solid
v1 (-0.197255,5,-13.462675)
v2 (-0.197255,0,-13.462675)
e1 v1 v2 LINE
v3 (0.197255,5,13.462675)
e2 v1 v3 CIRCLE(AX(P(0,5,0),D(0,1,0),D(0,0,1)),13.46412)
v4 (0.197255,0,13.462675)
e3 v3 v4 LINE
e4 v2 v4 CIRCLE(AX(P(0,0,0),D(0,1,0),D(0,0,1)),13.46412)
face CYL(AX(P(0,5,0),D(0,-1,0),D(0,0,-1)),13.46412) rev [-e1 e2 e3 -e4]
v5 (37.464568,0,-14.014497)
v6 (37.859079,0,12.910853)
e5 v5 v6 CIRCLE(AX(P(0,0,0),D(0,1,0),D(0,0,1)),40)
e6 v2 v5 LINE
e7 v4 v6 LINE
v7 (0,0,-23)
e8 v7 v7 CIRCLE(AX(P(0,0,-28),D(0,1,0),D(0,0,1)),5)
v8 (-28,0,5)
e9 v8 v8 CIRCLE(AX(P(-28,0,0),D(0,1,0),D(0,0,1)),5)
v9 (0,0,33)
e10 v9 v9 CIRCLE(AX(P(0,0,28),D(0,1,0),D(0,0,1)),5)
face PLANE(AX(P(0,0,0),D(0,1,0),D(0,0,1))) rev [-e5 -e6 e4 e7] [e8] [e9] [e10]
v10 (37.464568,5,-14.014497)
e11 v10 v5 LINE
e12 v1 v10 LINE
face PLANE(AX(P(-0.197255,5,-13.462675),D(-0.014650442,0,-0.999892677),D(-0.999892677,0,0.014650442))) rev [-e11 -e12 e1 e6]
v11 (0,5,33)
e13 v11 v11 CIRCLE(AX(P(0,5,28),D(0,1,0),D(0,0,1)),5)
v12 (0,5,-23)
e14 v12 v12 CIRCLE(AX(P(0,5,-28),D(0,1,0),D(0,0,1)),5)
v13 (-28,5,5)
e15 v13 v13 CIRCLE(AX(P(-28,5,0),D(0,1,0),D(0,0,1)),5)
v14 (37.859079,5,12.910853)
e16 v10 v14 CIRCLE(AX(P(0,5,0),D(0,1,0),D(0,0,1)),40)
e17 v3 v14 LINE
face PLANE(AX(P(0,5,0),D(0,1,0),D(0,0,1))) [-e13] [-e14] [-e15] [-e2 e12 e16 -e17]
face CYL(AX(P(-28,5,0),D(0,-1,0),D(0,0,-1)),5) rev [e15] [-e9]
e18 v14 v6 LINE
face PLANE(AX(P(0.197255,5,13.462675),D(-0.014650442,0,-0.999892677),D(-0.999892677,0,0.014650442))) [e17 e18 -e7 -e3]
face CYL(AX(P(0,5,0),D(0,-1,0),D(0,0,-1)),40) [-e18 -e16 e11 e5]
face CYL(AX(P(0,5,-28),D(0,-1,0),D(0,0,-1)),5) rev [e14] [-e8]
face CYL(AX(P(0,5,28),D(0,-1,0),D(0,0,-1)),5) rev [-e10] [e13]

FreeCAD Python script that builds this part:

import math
import FreeCAD as App
import Part
import Sketcher
from FreeCAD import Vector

doc = App.newDocument("Part")
body = doc.addObject("PartDesign::Body", "Body")

# Sketch on XZ plane
sketch1 = body.newObject("Sketcher::SketchObject", "Sketch")
sketch1.AttachmentSupport = (doc.getObject("XZ_Plane"), [""])
sketch1.MapMode = "FlatFace"
sketch1.addGeometry([
    Part.LineSegment(Vector(0, -13, 0), Vector(37, -14, 0)),  # 0
    Part.ArcOfCircle(Part.Circle(Vector(0, 0, 0), Vector(0, 0, 1), 40), math.radians(19), math.radians(339)),  # 1
    Part.LineSegment(Vector(38, 13, 0), Vector(0, 13, 0)),  # 2
    Part.ArcOfCircle(Part.Circle(Vector(0, 0, 0), Vector(0, 0, 1), 13), math.radians(89), math.radians(269)),  # 3
    Part.Circle(Vector(0, 28, 0), Vector(0, 0, 1), 5),  # 4
    Part.Circle(Vector(-28, 0, 0), Vector(0, 0, 1), 5),  # 5
    Part.Circle(Vector(0, -28, 0), Vector(0, 0, 1), 5),  # 6
], False)
sketch1.addConstraint([
    Sketcher.Constraint("Coincident", 0, 2, 1, 2),
    Sketcher.Constraint("Coincident", 1, 1, 2, 1),
    Sketcher.Constraint("Tangent", 2, 2, 3, 1),
    Sketcher.Constraint("Tangent", 3, 2, 0, 1),
    Sketcher.Constraint("Coincident", 1, 3, -1, 1),
    Sketcher.Constraint("Coincident", 3, 3, -1, 1),
    Sketcher.Constraint("Equal", 4, 5),
    Sketcher.Constraint("Equal", 5, 6),
    Sketcher.Constraint("Symmetric", 4, 3, 6, 3, -1, 1),
    Sketcher.Constraint("PointOnObject", 4, 3, -2),
    Sketcher.Constraint("PointOnObject", 5, 3, -1),
    Sketcher.Constraint("Parallel", 0, 2),
    Sketcher.Constraint("Diameter", 4, 10.0),
    Sketcher.Constraint("Radius", 1, 40.0),
    Sketcher.Constraint("DistanceY", -1, 1, 4, 3, 28.0),
    Sketcher.Constraint("DistanceX", 5, 3, -1, 1, 28.0),
    Sketcher.Constraint("Radius", 3, 13.46412),
    Sketcher.Constraint("DistanceX", -1, 1, 0, 2, 37.464568),
])
pad1 = body.newObject("PartDesign::Pad", "Pad")
pad1.Profile = sketch1
pad1.Length = 5
pad1.Reversed = True

doc.recompute()
